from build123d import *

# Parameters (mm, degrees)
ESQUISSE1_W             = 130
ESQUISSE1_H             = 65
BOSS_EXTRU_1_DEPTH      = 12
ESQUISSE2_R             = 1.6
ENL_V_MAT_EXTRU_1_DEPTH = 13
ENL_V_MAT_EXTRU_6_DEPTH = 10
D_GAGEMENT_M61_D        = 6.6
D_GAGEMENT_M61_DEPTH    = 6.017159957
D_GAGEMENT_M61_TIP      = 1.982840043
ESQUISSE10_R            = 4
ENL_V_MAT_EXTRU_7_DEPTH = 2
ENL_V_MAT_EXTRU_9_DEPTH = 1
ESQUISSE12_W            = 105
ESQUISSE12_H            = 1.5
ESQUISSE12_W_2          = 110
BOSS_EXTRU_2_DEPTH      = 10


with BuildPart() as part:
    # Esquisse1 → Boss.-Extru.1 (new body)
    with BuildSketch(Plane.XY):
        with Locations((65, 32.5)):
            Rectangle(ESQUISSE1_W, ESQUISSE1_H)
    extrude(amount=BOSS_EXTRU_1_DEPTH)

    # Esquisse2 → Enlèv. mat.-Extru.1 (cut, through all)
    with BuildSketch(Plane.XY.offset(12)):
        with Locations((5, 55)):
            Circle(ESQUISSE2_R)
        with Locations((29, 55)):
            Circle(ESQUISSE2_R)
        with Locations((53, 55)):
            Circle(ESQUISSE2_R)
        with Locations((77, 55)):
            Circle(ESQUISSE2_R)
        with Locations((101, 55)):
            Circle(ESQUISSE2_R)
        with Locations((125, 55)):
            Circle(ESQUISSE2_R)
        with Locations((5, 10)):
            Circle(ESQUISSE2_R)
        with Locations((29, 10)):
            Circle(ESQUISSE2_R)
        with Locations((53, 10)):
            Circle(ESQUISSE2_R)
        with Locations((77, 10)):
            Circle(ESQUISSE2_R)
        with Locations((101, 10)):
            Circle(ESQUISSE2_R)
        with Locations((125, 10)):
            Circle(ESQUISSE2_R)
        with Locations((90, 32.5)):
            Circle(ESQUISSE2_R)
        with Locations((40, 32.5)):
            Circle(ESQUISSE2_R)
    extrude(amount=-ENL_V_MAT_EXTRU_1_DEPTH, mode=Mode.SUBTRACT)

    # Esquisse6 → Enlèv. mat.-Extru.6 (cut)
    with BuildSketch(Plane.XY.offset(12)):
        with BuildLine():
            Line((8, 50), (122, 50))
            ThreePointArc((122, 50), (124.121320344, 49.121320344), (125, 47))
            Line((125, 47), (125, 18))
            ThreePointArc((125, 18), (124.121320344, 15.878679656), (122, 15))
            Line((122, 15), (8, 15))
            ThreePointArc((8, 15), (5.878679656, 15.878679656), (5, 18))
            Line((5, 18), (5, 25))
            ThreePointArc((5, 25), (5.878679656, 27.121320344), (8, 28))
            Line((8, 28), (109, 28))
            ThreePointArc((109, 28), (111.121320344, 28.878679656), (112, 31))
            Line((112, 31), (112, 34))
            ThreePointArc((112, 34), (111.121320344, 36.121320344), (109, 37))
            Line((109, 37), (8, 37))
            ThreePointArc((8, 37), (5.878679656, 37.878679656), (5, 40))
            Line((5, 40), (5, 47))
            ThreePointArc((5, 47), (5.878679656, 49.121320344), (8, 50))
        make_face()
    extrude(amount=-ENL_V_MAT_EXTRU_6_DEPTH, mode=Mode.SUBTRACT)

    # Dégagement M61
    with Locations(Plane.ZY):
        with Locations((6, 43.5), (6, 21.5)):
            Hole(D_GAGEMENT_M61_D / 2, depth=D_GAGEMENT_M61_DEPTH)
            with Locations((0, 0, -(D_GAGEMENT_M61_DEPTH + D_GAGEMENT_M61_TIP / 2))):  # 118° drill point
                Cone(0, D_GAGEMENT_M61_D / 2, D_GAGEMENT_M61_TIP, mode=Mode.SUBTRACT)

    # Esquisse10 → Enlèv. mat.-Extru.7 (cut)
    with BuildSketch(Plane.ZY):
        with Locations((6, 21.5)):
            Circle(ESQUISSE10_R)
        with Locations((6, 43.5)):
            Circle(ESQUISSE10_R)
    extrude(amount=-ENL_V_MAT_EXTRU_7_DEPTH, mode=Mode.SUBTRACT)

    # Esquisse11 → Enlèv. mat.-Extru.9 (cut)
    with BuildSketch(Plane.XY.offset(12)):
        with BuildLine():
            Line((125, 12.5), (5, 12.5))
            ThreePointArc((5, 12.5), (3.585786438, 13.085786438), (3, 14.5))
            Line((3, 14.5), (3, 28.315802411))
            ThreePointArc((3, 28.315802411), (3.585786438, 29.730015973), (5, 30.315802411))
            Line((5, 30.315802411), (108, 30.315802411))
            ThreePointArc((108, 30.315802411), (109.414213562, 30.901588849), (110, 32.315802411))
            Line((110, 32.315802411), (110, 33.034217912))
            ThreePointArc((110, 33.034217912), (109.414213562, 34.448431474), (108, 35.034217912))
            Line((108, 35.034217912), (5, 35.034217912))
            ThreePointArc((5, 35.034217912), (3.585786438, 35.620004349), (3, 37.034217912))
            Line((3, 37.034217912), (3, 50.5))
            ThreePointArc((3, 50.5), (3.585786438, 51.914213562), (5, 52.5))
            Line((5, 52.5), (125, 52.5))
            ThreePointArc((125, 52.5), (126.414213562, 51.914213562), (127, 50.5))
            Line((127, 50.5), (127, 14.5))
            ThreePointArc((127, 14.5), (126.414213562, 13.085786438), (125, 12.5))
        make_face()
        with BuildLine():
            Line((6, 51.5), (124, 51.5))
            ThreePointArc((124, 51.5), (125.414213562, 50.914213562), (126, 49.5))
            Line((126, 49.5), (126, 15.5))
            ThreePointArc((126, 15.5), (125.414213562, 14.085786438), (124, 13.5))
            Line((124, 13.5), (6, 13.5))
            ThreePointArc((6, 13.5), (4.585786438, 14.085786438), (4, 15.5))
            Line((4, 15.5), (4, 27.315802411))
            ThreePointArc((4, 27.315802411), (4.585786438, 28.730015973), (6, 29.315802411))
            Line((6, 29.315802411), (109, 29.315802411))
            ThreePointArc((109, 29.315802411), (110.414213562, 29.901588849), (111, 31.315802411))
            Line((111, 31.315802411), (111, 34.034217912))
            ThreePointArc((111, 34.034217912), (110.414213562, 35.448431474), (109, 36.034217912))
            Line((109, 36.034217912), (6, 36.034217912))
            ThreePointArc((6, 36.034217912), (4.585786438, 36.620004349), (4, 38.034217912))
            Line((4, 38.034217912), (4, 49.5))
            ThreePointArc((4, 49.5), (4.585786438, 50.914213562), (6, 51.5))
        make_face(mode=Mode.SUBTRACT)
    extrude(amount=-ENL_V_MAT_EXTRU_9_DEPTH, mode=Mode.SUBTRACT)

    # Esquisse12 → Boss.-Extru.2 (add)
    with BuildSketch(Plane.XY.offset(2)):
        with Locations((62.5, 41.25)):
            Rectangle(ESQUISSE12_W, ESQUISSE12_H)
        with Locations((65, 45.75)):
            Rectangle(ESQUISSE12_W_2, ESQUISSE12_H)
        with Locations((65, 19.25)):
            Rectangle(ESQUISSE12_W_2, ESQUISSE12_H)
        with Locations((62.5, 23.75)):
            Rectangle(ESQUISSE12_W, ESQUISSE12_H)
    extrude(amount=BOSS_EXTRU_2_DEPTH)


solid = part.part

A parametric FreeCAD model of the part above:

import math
import FreeCAD as App
import Part
import Sketcher

V = App.Vector
Q = App.Units.Quantity


def add_polygon(sketch, points):
    """Adds a closed chain of lines whose ends are joined by coincident constraints."""
    first, n = sketch.GeometryCount, len(points)
    for a, b in zip(points, points[1:] + points[:1]):
        sketch.addGeometry(Part.LineSegment(App.Vector(*a, 0), App.Vector(*b, 0)), False)
    for i in range(n):
        sketch.addConstraint(Sketcher.Constraint("Coincident", first + i, 2, first + (i + 1) % n, 1))

doc = App.newDocument("Part")
body = doc.addObject("PartDesign::Body", "Body")

# Sketch on XY plane
sketch1 = body.newObject("Sketcher::SketchObject", "Sketch")
sketch1.AttachmentSupport = (doc.getObject("XY_Plane"), [""])
sketch1.MapMode = "FlatFace"
add_polygon(sketch1, [(0, 65), (0, 0), (130, 0), (130, 65)])  # lines 0-3
sketch1.addConstraint([
    Sketcher.Constraint("Vertical", 0),
    Sketcher.Constraint("Horizontal", 1),
    Sketcher.Constraint("Vertical", 2),
    Sketcher.Constraint("Horizontal", 3),
    Sketcher.Constraint("Coincident", 0, 2, -1, 1),
    Sketcher.Constraint("DistanceX", 1, 1, 1, 2, Q("130 mm")),
    Sketcher.Constraint("DistanceY", 0, 2, 0, 1, Q("65 mm")),
])
pad1 = body.newObject("PartDesign::Pad", "Pad")
pad1.Profile = sketch1
pad1.Length = 12

# Sketch on XY plane
sketch2 = body.newObject("Sketcher::SketchObject", "Sketch001")
sketch2.AttachmentSupport = (doc.getObject("XY_Plane"), [""])
sketch2.MapMode = "FlatFace"
sketch2.AttachmentOffset = App.Placement(V(0, 0, 12), App.Rotation())
sketch2.addGeometry([
    Part.Circle(V(5, 55, 0), V(0, 0, 1), 1.6),  # 0
    Part.Circle(V(29, 55, 0), V(0, 0, 1), 1.6),  # 1
    Part.Circle(V(53, 55, 0), V(0, 0, 1), 1.6),  # 2
    Part.Circle(V(77, 55, 0), V(0, 0, 1), 1.6),  # 3
    Part.Circle(V(101, 55, 0), V(0, 0, 1), 1.6),  # 4
    Part.Circle(V(125, 55, 0), V(0, 0, 1), 1.6),  # 5
    Part.Circle(V(5, 10, 0), V(0, 0, 1), 1.6),  # 6
    Part.Circle(V(29, 10, 0), V(0, 0, 1), 1.6),  # 7
    Part.Circle(V(53, 10, 0), V(0, 0, 1), 1.6),  # 8
    Part.Circle(V(77, 10, 0), V(0, 0, 1), 1.6),  # 9
    Part.Circle(V(101, 10, 0), V(0, 0, 1), 1.6),  # 10
    Part.Circle(V(125, 10, 0), V(0, 0, 1), 1.6),  # 11
    Part.Circle(V(90, 32.5, 0), V(0, 0, 1), 1.6),  # 12
    Part.Circle(V(40, 32.5, 0), V(0, 0, 1), 1.6),  # 13
], False)
sketch2.addConstraint([
    Sketcher.Constraint("Equal", 0, 1),
    Sketcher.Constraint("Equal", 1, 2),
    Sketcher.Constraint("Equal", 2, 3),
    Sketcher.Constraint("Equal", 3, 4),
    Sketcher.Constraint("Equal", 4, 5),
    Sketcher.Constraint("Equal", 5, 6),
    Sketcher.Constraint("Equal", 6, 7),
    Sketcher.Constraint("Equal", 7, 8),
    Sketcher.Constraint("Equal", 8, 9),
    Sketcher.Constraint("Equal", 9, 10),
    Sketcher.Constraint("Equal", 10, 11),
    Sketcher.Constraint("Equal", 11, 12),
    Sketcher.Constraint("Equal", 12, 13),
    Sketcher.Constraint("Horizontal", 0, 3, 1, 3),
    Sketcher.Constraint("Horizontal", 1, 3, 2, 3),
    Sketcher.Constraint("Horizontal", 2, 3, 3, 3),
    Sketcher.Constraint("Horizontal", 3, 3, 4, 3),
    Sketcher.Constraint("Horizontal", 4, 3, 5, 3),
    Sketcher.Constraint("Horizontal", 6, 3, 7, 3),
    Sketcher.Constraint("Horizontal", 7, 3, 8, 3),
    Sketcher.Constraint("Horizontal", 8, 3, 9, 3),
    Sketcher.Constraint("Horizontal", 9, 3, 10, 3),
    Sketcher.Constraint("Horizontal", 10, 3, 11, 3),
    Sketcher.Constraint("Horizontal", 12, 3, 13, 3),
    Sketcher.Constraint("Vertical", 0, 3, 6, 3),
    Sketcher.Constraint("Vertical", 1, 3, 7, 3),
    Sketcher.Constraint("Vertical", 2, 3, 8, 3),
    Sketcher.Constraint("Vertical", 3, 3, 9, 3),
    Sketcher.Constraint("Vertical", 4, 3, 10, 3),
    Sketcher.Constraint("Vertical", 5, 3, 11, 3),
    Sketcher.Constraint("Diameter", 0, Q("3.2 mm")),
    Sketcher.Constraint("DistanceX", -1, 1, 0, 3, Q("5 mm")),
    Sketcher.Constraint("DistanceY", -1, 1, 0, 3, Q("55 mm")),
    Sketcher.Constraint("DistanceX", -1, 1, 1, 3, Q("29 mm")),
    Sketcher.Constraint("DistanceX", -1, 1, 2, 3, Q("53 mm")),
    Sketcher.Constraint("DistanceX", -1, 1, 3, 3, Q("77 mm")),
    Sketcher.Constraint("DistanceX", -1, 1, 4, 3, Q("101 mm")),
    Sketcher.Constraint("DistanceX", -1, 1, 5, 3, Q("125 mm")),
    Sketcher.Constraint("DistanceY", -1, 1, 6, 3, Q("10 mm")),
    Sketcher.Constraint("DistanceX", -1, 1, 12, 3, Q("90 mm")),
    Sketcher.Constraint("DistanceX", -1, 1, 13, 3, Q("40 mm")),
    Sketcher.Constraint("DistanceY", -1, 1, 12, 3, Q("32.5 mm")),
])
pocket1 = body.newObject("PartDesign::Pocket", "Pocket")
pocket1.Profile = sketch2
pocket1.Type = "ThroughAll"

# Sketch on XY plane
sketch3 = body.newObject("Sketcher::SketchObject", "Sketch002")
sketch3.AttachmentSupport = (doc.getObject("XY_Plane"), [""])
sketch3.MapMode = "FlatFace"
sketch3.AttachmentOffset = App.Placement(V(0, 0, 12), App.Rotation())
sketch3.addGeometry([
    Part.LineSegment(V(122, 50, 0), V(8, 50, 0)),  # 0
    Part.ArcOfCircle(Part.Circle(V(8, 47, 0), V(0, 0, 1), 3), math.radians(90), math.radians(180)),  # 1
    Part.LineSegment(V(5, 47, 0), V(5, 40, 0)),  # 2
    Part.ArcOfCircle(Part.Circle(V(8, 40, 0), V(0, 0, 1), 3), math.radians(180), math.radians(270)),  # 3
    Part.LineSegment(V(8, 37, 0), V(109, 37, 0)),  # 4
    Part.ArcOfCircle(Part.Circle(V(109, 34, 0), V(0, 0, 1), 3), math.radians(0), math.radians(90)),  # 5
    Part.LineSegment(V(112, 34, 0), V(112, 31, 0)),  # 6
    Part.ArcOfCircle(Part.Circle(V(109, 31, 0), V(0, 0, 1), 3), math.radians(-90), math.radians(0)),  # 7
    Part.LineSegment(V(109, 28, 0), V(8, 28, 0)),  # 8
    Part.ArcOfCircle(Part.Circle(V(8, 25, 0), V(0, 0, 1), 3), math.radians(90), math.radians(180)),  # 9
    Part.LineSegment(V(5, 25, 0), V(5, 18, 0)),  # 10
    Part.ArcOfCircle(Part.Circle(V(8, 18, 0), V(0, 0, 1), 3), math.radians(180), math.radians(270)),  # 11
    Part.LineSegment(V(8, 15, 0), V(122, 15, 0)),  # 12
    Part.ArcOfCircle(Part.Circle(V(122, 18, 0), V(0, 0, 1), 3), math.radians(-90), math.radians(0)),  # 13
    Part.LineSegment(V(125, 18, 0), V(125, 47, 0)),  # 14
    Part.ArcOfCircle(Part.Circle(V(122, 47, 0), V(0, 0, 1), 3), math.radians(0), math.radians(90)),  # 15
], False)
sketch3.addConstraint([
    Sketcher.Constraint("Tangent", 0, 2, 1, 1),
    Sketcher.Constraint("Tangent", 1, 2, 2, 1),
    Sketcher.Constraint("Tangent", 2, 2, 3, 1),
    Sketcher.Constraint("Tangent", 3, 2, 4, 1),
    Sketcher.Constraint("Tangent", 4, 2, 5, 2),
    Sketcher.Constraint("Tangent", 5, 1, 6, 1),
    Sketcher.Constraint("Tangent", 6, 2, 7, 2),
    Sketcher.Constraint("Tangent", 7, 1, 8, 1),
    Sketcher.Constraint("Tangent", 8, 2, 9, 1),
    Sketcher.Constraint("Tangent", 9, 2, 10, 1),
    Sketcher.Constraint("Tangent", 10, 2, 11, 1),
    Sketcher.Constraint("Tangent", 11, 2, 12, 1),
    Sketcher.Constraint("Tangent", 12, 2, 13, 1),
    Sketcher.Constraint("Tangent", 13, 2, 14, 1),
    Sketcher.Constraint("Tangent", 14, 2, 15, 1),
    Sketcher.Constraint("Tangent", 15, 2, 0, 1),
    Sketcher.Constraint("Horizontal", 0),
    Sketcher.Constraint("Vertical", 2),
    Sketcher.Constraint("Horizontal", 4),
    Sketcher.Constraint("Vertical", 6),
    Sketcher.Constraint("Horizontal", 8),
    Sketcher.Constraint("Vertical", 10),
    Sketcher.Constraint("Horizontal", 12),
    Sketcher.Constraint("Vertical", 14),
    Sketcher.Constraint("Equal", 1, 3),
    Sketcher.Constraint("Equal", 3, 5),
    Sketcher.Constraint("Equal", 5, 7),
    Sketcher.Constraint("Equal", 7, 9),
    Sketcher.Constraint("Equal", 9, 11),
    Sketcher.Constraint("Equal", 11, 13),
    Sketcher.Constraint("Equal", 13, 15),
    Sketcher.Constraint("Vertical", 3, 3, 9, 3),
    Sketcher.Constraint("Equal", 2, 10),
    Sketcher.Constraint("Radius", 1, Q("3 mm")),
    Sketcher.Constraint("DistanceX", 0, 2, 0, 1, Q("114 mm")),
    Sketcher.Constraint("DistanceX", 4, 1, 4, 2, Q("101 mm")),
    Sketcher.Constraint("DistanceY", 2, 2, 2, 1, Q("7 mm")),
    Sketcher.Constraint("DistanceY", 6, 2, 6, 1, Q("3 mm")),
    Sketcher.Constraint("DistanceX", -1, 1, 1, 3, Q("8 mm")),
    Sketcher.Constraint("DistanceY", -1, 1, 1, 3, Q("47 mm")),
])
pocket2 = body.newObject("PartDesign::Pocket", "Pocket001")
pocket2.Profile = sketch3
pocket2.Length = 10

# Sketch on YZ plane
sketch4 = body.newObject("Sketcher::SketchObject", "Sketch003")
sketch4.AttachmentSupport = (doc.getObject("YZ_Plane"), [""])
sketch4.MapMode = "FlatFace"
sketch4.addGeometry([
    Part.Circle(V(43.5, 6, 0), V(0, 0, 1), 3.3),
    Part.Circle(V(21.5, 6, 0), V(0, 0, 1), 3.3),
], False)
sketch4.addConstraint([
    Sketcher.Constraint("Equal", 0, 1),
    Sketcher.Constraint("Horizontal", 0, 3, 1, 3),
    Sketcher.Constraint("Diameter", 0, Q("6.6 mm")),
    Sketcher.Constraint("DistanceY", -1, 1, 0, 3, Q("6 mm")),
    Sketcher.Constraint("DistanceX", 1, 3, 0, 3, Q("22 mm")),
    Sketcher.Constraint("DistanceX", -1, 1, 0, 3, Q("43.5 mm")),
])
doc.recompute()
hole = body.newObject("PartDesign::Hole", "Hole")
hole.Profile = sketch4
hole.ThreadType = "None"
hole.Diameter = 6.6
hole.DepthType = "Dimension"
hole.Depth = 6.01716
hole.DrillPoint = "Angled"
hole.DrillPointAngle = 118
hole.Reversed = True

# Sketch on YZ plane
sketch5 = body.newObject("Sketcher::SketchObject", "Sketch004")
sketch5.AttachmentSupport = (doc.getObject("YZ_Plane"), [""])
sketch5.MapMode = "FlatFace"
sketch5.addGeometry([
    Part.Circle(V(21.5, 6, 0), V(0, 0, 1), 4),
    Part.Circle(V(43.5, 6, 0), V(0, 0, 1), 4),
], False)
sketch5.addConstraint([
    Sketcher.Constraint("Equal", 0, 1),
    Sketcher.Constraint("Horizontal", 0, 3, 1, 3),
    Sketcher.Constraint("Diameter", 0, Q("8 mm")),
    Sketcher.Constraint("DistanceY", -1, 1, 0, 3, Q("6 mm")),
    Sketcher.Constraint("DistanceX", 0, 3, 1, 3, Q("22 mm")),
    Sketcher.Constraint("DistanceX", -1, 1, 0, 3, Q("21.5 mm")),
])
pocket3 = body.newObject("PartDesign::Pocket", "Pocket002")
pocket3.Profile = sketch5
pocket3.Length = 2
pocket3.Reversed = True

# Sketch on XY plane
sketch6 = body.newObject("Sketcher::SketchObject", "Sketch005")
sketch6.AttachmentSupport = (doc.getObject("XY_Plane"), [""])
sketch6.MapMode = "FlatFace"
sketch6.AttachmentOffset = App.Placement(V(0, 0, 12), App.Rotation())
sketch6.addGeometry([
    Part.LineSegment(V(5, 12.5, 0), V(125, 12.5, 0)),  # 0
    Part.ArcOfCircle(Part.Circle(V(125, 14.5, 0), V(0, 0, 1), 2), math.radians(-90), math.radians(0)),  # 1
    Part.LineSegment(V(127, 14.5, 0), V(127, 50.5, 0)),  # 2
    Part.ArcOfCircle(Part.Circle(V(125, 50.5, 0), V(0, 0, 1), 2), math.radians(0), math.radians(90)),  # 3
    Part.LineSegment(V(125, 52.5, 0), V(5, 52.5, 0)),  # 4
    Part.ArcOfCircle(Part.Circle(V(5, 50.5, 0), V(0, 0, 1), 2), math.radians(90), math.radians(180)),  # 5
    Part.LineSegment(V(3, 50.5, 0), V(3, 37, 0)),  # 6
    Part.ArcOfCircle(Part.Circle(V(5, 37, 0), V(0, 0, 1), 2), math.radians(180), math.radians(270)),  # 7
    Part.LineSegment(V(5, 35, 0), V(108, 35, 0)),  # 8
    Part.ArcOfCircle(Part.Circle(V(108, 33, 0), V(0, 0, 1), 2), math.radians(0), math.radians(90)),  # 9
    Part.LineSegment(V(110, 33, 0), V(110, 32.3, 0)),  # 10
    Part.ArcOfCircle(Part.Circle(V(108, 32.3, 0), V(0, 0, 1), 2), math.radians(-90), math.radians(0)),  # 11
    Part.LineSegment(V(108, 30.3, 0), V(5, 30.3, 0)),  # 12
    Part.ArcOfCircle(Part.Circle(V(5, 28.3, 0), V(0, 0, 1), 2), math.radians(90), math.radians(180)),  # 13
    Part.LineSegment(V(3, 28.3, 0), V(3, 14.5, 0)),  # 14
    Part.ArcOfCircle(Part.Circle(V(5, 14.5, 0), V(0, 0, 1), 2), math.radians(-180), math.radians(-90)),  # 15
    Part.LineSegment(V(6, 51.5, 0), V(124, 51.5, 0)),  # 16
    Part.ArcOfCircle(Part.Circle(V(124, 49.5, 0), V(0, 0, 1), 2), math.radians(0), math.radians(90)),  # 17
    Part.LineSegment(V(126, 49.5, 0), V(126, 15.5, 0)),  # 18
    Part.ArcOfCircle(Part.Circle(V(124, 15.5, 0), V(0, 0, 1), 2), math.radians(-90), math.radians(0)),  # 19
    Part.LineSegment(V(124, 13.5, 0), V(6, 13.5, 0)),  # 20
    Part.ArcOfCircle(Part.Circle(V(6, 15.5, 0), V(0, 0, 1), 2), math.radians(-180), math.radians(-90)),  # 21
    Part.LineSegment(V(4, 15.5, 0), V(4, 27.3, 0)),  # 22
    Part.ArcOfCircle(Part.Circle(V(6, 27.3, 0), V(0, 0, 1), 2), math.radians(90), math.radians(180)),  # 23
    Part.LineSegment(V(6, 29.3, 0), V(109, 29.3, 0)),  # 24
    Part.ArcOfCircle(Part.Circle(V(109, 31.3, 0), V(0, 0, 1), 2), math.radians(-90), math.radians(0)),  # 25
    Part.LineSegment(V(111, 31.3, 0), V(111, 34, 0)),  # 26
    Part.ArcOfCircle(Part.Circle(V(109, 34, 0), V(0, 0, 1), 2), math.radians(0), math.radians(90)),  # 27
    Part.LineSegment(V(109, 36, 0), V(6, 36, 0)),  # 28
    Part.ArcOfCircle(Part.Circle(V(6, 38, 0), V(0, 0, 1), 2), math.radians(180), math.radians(270)),  # 29
    Part.LineSegment(V(4, 38, 0), V(4, 49.5, 0)),  # 30
    Part.ArcOfCircle(Part.Circle(V(6, 49.5, 0), V(0, 0, 1), 2), math.radians(90), math.radians(180)),  # 31
], False)
sketch6.addConstraint([
    Sketcher.Constraint("Tangent", 0, 2, 1, 1),
    Sketcher.Constraint("Tangent", 1, 2, 2, 1),
    Sketcher.Constraint("Tangent", 2, 2, 3, 1),
    Sketcher.Constraint("Tangent", 3, 2, 4, 1),
    Sketcher.Constraint("Tangent", 4, 2, 5, 1),
    Sketcher.Constraint("Tangent", 5, 2, 6, 1),
    Sketcher.Constraint("Tangent", 6, 2, 7, 1),
    Sketcher.Constraint("Tangent", 7, 2, 8, 1),
    Sketcher.Constraint("Tangent", 8, 2, 9, 2),
    Sketcher.Constraint("Tangent", 9, 1, 10, 1),
    Sketcher.Constraint("Tangent", 10, 2, 11, 2),
    Sketcher.Constraint("Tangent", 11, 1, 12, 1),
    Sketcher.Constraint("Tangent", 12, 2, 13, 1),
    Sketcher.Constraint("Tangent", 13, 2, 14, 1),
    Sketcher.Constraint("Tangent", 14, 2, 15, 1),
    Sketcher.Constraint("Tangent", 15, 2, 0, 1),
    Sketcher.Constraint("Tangent", 16, 2, 17, 2),
    Sketcher.Constraint("Tangent", 17, 1, 18, 1),
    Sketcher.Constraint("Tangent", 18, 2, 19, 2),
    Sketcher.Constraint("Tangent", 19, 1, 20, 1),
    Sketcher.Constraint("Tangent", 20, 2, 21, 2),
    Sketcher.Constraint("Tangent", 21, 1, 22, 1),
    Sketcher.Constraint("Tangent", 22, 2, 23, 2),
    Sketcher.Constraint("Tangent", 23, 1, 24, 1),
    Sketcher.Constraint("Tangent", 24, 2, 25, 1),
    Sketcher.Constraint("Tangent", 25, 2, 26, 1),
    Sketcher.Constraint("Tangent", 26, 2, 27, 1),
    Sketcher.Constraint("Tangent", 27, 2, 28, 1),
    Sketcher.Constraint("Tangent", 28, 2, 29, 2),
    Sketcher.Constraint("Tangent", 29, 1, 30, 1),
    Sketcher.Constraint("Tangent", 30, 2, 31, 2),
    Sketcher.Constraint("Tangent", 31, 1, 16, 1),
    Sketcher.Constraint("Horizontal", 0),
    Sketcher.Constraint("Vertical", 2),
    Sketcher.Constraint("Horizontal", 4),
    Sketcher.Constraint("Vertical", 6),
    Sketcher.Constraint("Horizontal", 8),
    Sketcher.Constraint("Vertical", 10),
    Sketcher.Constraint("Horizontal", 12),
    Sketcher.Constraint("Vertical", 14),
    Sketcher.Constraint("Horizontal", 16),
    Sketcher.Constraint("Vertical", 18),
    Sketcher.Constraint("Horizontal", 20),
    Sketcher.Constraint("Vertical", 22),
    Sketcher.Constraint("Horizontal", 24),
    Sketcher.Constraint("Vertical", 26),
    Sketcher.Constraint("Horizontal", 28),
    Sketcher.Constraint("Vertical", 30),
    Sketcher.Constraint("Equal", 1, 3),
    Sketcher.Constraint("Equal", 3, 5),
    Sketcher.Constraint("Equal", 5, 7),
    Sketcher.Constraint("Equal", 7, 9),
    Sketcher.Constraint("Equal", 9, 11),
    Sketcher.Constraint("Equal", 11, 13),
    Sketcher.Constraint("Equal", 13, 15),
    Sketcher.Constraint("Equal", 15, 17),
    Sketcher.Constraint("Equal", 17, 19),
    Sketcher.Constraint("Equal", 19, 21),
    Sketcher.Constraint("Equal", 21, 23),
    Sketcher.Constraint("Equal", 23, 25),
    Sketcher.Constraint("Equal", 25, 27),
    Sketcher.Constraint("Equal", 27, 29),
    Sketcher.Constraint("Equal", 29, 31),
    Sketcher.Constraint("Vertical", 7, 3, 13, 3),
    Sketcher.Constraint("Vertical", 23, 3, 29, 3),
    Sketcher.Constraint("Equal", 12, 24),
    Sketcher.Constraint("Radius", 1, Q("2 mm")),
    Sketcher.Constraint("DistanceX", 0, 1, 0, 2, Q("120 mm")),
    Sketcher.Constraint("DistanceX", 8, 1, 8, 2, Q("103 mm")),
    Sketcher.Constraint("DistanceX", 16, 1, 16, 2, Q("118 mm")),
    Sketcher.Constraint("DistanceY", 2, 1, 2, 2, Q("36 mm")),
    Sketcher.Constraint("DistanceY", 18, 2, 18, 1, Q("34 mm")),
    Sketcher.Constraint("DistanceX", -1, 1, 1, 3, Q("125 mm")),
    Sketcher.Constraint("DistanceX", -1, 1, 17, 3, Q("124 mm")),
    Sketcher.Constraint("DistanceY", 17, 3, 3, 3, Q("1 mm")),
    Sketcher.Constraint("DistanceY", 23, 3, 13, 3, Q("1 mm")),
    Sketcher.Constraint("DistanceY", 9, 3, 27, 3, Q("1 mm")),
    Sketcher.Constraint("DistanceY", -1, 1, 1, 3, Q("14.5 mm")),
    Sketcher.Constraint("DistanceY", 6, 2, 6, 1, Q("13.465782 mm")),
    Sketcher.Constraint("DistanceY", 10, 2, 10, 1, Q("0.718416 mm")),
])
pocket4 = body.newObject("PartDesign::Pocket", "Pocket003")
pocket4.Profile = sketch6
pocket4.Length = 1

# Sketch on XY plane
sketch7 = body.newObject("Sketcher::SketchObject", "Sketch006")
sketch7.AttachmentSupport = (doc.getObject("XY_Plane"), [""])
sketch7.MapMode = "FlatFace"
sketch7.AttachmentOffset = App.Placement(V(0, 0, 2), App.Rotation())
add_polygon(sketch7, [(10, 42), (10, 40.5), (115, 40.5), (115, 42)])  # lines 0-3
add_polygon(sketch7, [(10, 46.5), (10, 45), (120, 45), (120, 46.5)])  # lines 4-7
add_polygon(sketch7, [(10, 20), (10, 18.5), (120, 18.5), (120, 20)])  # lines 8-11
add_polygon(sketch7, [(10, 24.5), (10, 23), (115, 23), (115, 24.5)])  # lines 12-15
sketch7.addConstraint([
    Sketcher.Constraint("Vertical", 0),
    Sketcher.Constraint("Horizontal", 1),
    Sketcher.Constraint("Vertical", 2),
    Sketcher.Constraint("Horizontal", 3),
    Sketcher.Constraint("Vertical", 4),
    Sketcher.Constraint("Horizontal", 5),
    Sketcher.Constraint("Vertical", 6),
    Sketcher.Constraint("Horizontal", 7),
    Sketcher.Constraint("Vertical", 8),
    Sketcher.Constraint("Horizontal", 9),
    Sketcher.Constraint("Vertical", 10),
    Sketcher.Constraint("Horizontal", 11),
    Sketcher.Constraint("Vertical", 12),
    Sketcher.Constraint("Horizontal", 13),
    Sketcher.Constraint("Vertical", 14),
    Sketcher.Constraint("Horizontal", 15),
    Sketcher.Constraint("Vertical", 3, 2, 4, 2),
    Sketcher.Constraint("Vertical", 7, 2, 8, 2),
    Sketcher.Constraint("Vertical", 6, 2, 9, 2),
    Sketcher.Constraint("Vertical", 11, 2, 12, 2),
    Sketcher.Constraint("Vertical", 2, 2, 13, 2),
    Sketcher.Constraint("Equal", 2, 4),
    Sketcher.Constraint("Equal", 6, 8),
    Sketcher.Constraint("Equal", 10, 12),
    Sketcher.Constraint("DistanceX", 1, 1, 1, 2, Q("105 mm")),
    Sketcher.Constraint("DistanceX", 5, 1, 5, 2, Q("110 mm")),
    Sketcher.Constraint("DistanceY", 0, 2, 0, 1, Q("1.5 mm")),
    Sketcher.Constraint("DistanceX", -1, 1, 0, 2, Q("10 mm")),
    Sketcher.Constraint("DistanceY", -1, 1, 2, 2, Q("42 mm")),
    Sketcher.Constraint("DistanceY", -1, 1, 4, 2, Q("45 mm")),
    Sketcher.Constraint("DistanceY", -1, 1, 10, 2, Q("20 mm")),
    Sketcher.Constraint("DistanceY", -1, 1, 12, 2, Q("23 mm")),
])
pad2 = body.newObject("PartDesign::Pad", "Pad001")
pad2.Profile = sketch7
pad2.Length = 10

doc.recompute()
